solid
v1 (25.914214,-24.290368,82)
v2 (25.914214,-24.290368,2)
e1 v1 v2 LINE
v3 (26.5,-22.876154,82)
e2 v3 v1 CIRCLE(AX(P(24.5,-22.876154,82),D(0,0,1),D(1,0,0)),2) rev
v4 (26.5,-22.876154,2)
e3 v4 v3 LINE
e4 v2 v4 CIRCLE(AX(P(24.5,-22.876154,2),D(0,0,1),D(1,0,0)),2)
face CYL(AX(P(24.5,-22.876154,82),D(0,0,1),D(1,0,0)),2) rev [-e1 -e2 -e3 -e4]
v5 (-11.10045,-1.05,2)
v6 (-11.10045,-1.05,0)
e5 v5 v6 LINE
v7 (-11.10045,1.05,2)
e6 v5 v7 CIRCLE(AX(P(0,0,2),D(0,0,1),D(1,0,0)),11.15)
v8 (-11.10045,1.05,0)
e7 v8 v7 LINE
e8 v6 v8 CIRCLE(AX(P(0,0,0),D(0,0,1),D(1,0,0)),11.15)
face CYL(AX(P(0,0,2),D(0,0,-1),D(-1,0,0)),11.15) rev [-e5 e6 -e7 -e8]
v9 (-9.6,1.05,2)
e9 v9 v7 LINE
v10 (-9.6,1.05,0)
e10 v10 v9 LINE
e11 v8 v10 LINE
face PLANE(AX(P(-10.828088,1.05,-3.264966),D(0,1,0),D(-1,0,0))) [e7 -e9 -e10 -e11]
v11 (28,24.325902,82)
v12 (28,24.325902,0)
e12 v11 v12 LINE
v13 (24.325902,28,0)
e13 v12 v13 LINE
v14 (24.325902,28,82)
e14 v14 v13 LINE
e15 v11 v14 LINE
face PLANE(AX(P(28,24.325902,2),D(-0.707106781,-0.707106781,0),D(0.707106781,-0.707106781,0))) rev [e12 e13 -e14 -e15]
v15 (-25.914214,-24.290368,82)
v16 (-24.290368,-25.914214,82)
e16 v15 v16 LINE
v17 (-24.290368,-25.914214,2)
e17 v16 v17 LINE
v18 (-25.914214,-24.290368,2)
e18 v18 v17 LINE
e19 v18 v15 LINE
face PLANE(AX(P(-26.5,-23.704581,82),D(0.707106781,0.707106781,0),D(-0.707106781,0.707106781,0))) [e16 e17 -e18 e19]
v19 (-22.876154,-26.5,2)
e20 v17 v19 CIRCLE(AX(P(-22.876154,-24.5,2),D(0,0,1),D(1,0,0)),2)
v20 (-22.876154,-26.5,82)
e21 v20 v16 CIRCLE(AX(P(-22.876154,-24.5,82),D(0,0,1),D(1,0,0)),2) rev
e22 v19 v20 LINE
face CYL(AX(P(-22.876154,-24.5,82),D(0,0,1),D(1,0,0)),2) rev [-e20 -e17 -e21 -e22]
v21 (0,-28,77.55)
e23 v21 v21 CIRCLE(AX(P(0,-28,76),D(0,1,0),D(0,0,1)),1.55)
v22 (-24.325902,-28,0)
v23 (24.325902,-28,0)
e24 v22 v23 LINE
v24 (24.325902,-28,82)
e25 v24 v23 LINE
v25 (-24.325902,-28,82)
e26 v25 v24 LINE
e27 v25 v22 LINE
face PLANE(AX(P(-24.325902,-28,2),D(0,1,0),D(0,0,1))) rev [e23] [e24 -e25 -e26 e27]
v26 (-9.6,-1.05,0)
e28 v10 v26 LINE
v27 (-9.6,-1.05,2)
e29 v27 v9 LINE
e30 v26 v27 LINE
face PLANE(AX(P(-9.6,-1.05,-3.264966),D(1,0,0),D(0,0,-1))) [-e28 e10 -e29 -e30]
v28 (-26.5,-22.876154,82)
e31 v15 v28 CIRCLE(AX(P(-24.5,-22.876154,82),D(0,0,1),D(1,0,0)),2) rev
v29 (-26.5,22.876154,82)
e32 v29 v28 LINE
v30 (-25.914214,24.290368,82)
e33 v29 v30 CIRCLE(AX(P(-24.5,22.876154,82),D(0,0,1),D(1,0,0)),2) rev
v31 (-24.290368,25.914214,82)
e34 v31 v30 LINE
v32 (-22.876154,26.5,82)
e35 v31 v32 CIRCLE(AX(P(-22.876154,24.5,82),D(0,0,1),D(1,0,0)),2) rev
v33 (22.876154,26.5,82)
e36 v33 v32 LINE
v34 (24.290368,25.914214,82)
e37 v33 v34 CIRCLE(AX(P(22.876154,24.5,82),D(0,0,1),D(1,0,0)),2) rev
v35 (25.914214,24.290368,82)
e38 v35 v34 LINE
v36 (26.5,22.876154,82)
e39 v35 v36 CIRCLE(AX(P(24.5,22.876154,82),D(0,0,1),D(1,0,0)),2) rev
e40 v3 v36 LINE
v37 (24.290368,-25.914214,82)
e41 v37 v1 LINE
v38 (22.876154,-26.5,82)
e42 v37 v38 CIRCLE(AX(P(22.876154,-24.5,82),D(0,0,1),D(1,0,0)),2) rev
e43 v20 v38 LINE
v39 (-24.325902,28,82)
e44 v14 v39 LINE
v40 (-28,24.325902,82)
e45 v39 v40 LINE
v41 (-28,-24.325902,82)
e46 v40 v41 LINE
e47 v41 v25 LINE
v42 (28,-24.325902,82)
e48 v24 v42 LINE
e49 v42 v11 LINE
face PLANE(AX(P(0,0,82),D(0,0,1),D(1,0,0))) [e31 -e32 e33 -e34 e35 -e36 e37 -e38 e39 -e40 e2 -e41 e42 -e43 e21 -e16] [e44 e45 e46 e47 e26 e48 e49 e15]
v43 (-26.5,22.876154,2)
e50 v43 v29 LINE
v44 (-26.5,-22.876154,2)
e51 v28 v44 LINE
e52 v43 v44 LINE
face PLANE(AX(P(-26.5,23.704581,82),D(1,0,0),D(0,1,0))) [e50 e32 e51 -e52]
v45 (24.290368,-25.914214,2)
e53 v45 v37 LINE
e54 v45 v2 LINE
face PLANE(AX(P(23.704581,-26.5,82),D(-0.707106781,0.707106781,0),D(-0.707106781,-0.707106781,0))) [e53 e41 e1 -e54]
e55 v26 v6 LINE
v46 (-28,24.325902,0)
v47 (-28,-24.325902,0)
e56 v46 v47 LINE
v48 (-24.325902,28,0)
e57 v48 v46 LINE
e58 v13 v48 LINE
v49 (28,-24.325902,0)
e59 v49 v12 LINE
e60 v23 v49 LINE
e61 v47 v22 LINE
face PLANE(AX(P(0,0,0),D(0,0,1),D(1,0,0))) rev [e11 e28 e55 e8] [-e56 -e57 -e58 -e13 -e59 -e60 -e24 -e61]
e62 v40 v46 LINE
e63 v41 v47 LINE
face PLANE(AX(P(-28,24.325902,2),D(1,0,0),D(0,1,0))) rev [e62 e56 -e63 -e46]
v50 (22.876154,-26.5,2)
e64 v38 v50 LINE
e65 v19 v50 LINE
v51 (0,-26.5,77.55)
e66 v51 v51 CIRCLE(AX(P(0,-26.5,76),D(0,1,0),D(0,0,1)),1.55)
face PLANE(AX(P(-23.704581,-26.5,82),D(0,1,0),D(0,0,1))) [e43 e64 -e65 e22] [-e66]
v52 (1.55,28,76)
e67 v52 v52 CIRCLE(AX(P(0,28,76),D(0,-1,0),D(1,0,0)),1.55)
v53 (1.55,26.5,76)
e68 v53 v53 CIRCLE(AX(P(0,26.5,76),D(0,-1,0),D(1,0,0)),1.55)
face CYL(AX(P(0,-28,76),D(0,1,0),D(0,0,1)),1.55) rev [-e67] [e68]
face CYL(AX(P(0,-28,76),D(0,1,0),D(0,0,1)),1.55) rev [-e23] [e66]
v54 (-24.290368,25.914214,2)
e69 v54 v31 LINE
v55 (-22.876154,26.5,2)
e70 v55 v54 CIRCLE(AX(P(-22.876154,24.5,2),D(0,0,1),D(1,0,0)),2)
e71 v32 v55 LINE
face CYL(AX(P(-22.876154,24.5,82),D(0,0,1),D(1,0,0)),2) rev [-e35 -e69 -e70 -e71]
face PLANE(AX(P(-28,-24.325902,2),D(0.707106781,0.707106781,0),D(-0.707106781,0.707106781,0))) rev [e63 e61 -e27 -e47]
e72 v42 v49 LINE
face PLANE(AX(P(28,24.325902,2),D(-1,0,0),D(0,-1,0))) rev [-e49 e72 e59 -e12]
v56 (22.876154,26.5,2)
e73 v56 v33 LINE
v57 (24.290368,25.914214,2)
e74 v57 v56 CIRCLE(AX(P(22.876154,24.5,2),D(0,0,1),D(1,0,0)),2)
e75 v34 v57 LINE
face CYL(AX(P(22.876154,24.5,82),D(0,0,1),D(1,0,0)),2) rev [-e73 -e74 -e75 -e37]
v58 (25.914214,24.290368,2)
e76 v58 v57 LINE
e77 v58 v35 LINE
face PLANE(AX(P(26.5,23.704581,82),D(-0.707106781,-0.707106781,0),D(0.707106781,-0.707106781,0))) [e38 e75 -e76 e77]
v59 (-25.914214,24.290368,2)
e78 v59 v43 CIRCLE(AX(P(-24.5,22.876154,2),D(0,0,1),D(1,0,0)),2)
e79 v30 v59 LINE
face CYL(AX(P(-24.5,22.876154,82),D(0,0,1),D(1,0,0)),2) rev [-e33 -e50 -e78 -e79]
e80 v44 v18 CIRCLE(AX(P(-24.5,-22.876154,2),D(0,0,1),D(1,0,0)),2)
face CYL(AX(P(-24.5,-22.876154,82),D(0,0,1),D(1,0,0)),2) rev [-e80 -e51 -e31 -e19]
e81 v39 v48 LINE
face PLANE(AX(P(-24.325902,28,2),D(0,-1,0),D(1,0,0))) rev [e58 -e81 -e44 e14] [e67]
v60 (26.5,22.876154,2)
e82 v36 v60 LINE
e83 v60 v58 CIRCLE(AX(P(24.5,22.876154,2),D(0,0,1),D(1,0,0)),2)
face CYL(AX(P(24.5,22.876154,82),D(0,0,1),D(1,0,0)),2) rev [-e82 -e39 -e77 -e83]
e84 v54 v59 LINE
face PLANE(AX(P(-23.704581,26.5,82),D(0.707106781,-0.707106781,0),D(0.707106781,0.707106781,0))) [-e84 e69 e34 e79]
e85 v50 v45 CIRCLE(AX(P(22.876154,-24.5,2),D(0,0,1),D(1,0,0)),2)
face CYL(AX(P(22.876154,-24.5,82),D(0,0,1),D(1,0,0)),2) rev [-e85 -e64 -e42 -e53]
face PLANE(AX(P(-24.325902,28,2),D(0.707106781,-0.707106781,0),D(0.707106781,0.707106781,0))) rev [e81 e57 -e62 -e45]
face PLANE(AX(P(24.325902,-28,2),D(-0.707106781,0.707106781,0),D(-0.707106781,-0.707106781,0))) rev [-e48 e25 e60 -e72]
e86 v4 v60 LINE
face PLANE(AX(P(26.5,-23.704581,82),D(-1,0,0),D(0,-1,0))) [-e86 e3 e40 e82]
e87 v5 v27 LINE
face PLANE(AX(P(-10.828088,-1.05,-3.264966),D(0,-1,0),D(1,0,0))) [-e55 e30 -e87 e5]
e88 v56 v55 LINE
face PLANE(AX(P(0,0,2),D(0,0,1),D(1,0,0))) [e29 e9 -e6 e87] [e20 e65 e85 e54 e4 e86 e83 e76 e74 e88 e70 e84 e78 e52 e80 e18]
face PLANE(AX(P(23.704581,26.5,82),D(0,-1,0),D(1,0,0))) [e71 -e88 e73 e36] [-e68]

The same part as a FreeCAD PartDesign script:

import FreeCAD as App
import Part
import Sketcher
from FreeCAD import Vector
Q = App.Units.Quantity


def edges_at(feature, points):
    """Names of the edges that pass closest to the given points."""
    edges = feature.Shape.Edges
    near = lambda p: min(range(len(edges)), key=lambda i: edges[i].distToShape(Part.Vertex(*p))[0])
    return sorted({f"Edge{near(p) + 1}" for p in points})


def add_polygon(sketch, points):
    """Adds a closed chain of lines whose ends are joined by coincident constraints."""
    first, n = sketch.GeometryCount, len(points)
    for a, b in zip(points, points[1:] + points[:1]):
        sketch.addGeometry(Part.LineSegment(App.Vector(*a, 0), App.Vector(*b, 0)), False)
    for i in range(n):
        sketch.addConstraint(Sketcher.Constraint("Coincident", first + i, 2, first + (i + 1) % n, 1))

doc = App.newDocument("Part")
body = doc.addObject("PartDesign::Body", "Body")

sketch1 = doc.addObject("Sketcher::SketchObject", "Sketch")
body.addObject(sketch1)
sketch1.AttachmentSupport = (doc.XY_Plane, [""])
sketch1.MapMode = "FlatFace"
add_polygon(sketch1, [(24, 28), (-24, 28), (-28, 24), (-28, -24), (-24, -28), (24, -28), (28, -24), (28, 24)])
sketch1.addGeometry(Part.Circle(Vector(0, 0, 0), Vector(0, 0, 1), 11), False)
sketch1.addConstraint(Sketcher.Constraint("Horizontal", 0))
sketch1.addConstraint(Sketcher.Constraint("Vertical", 2))
sketch1.addConstraint(Sketcher.Constraint("Horizontal", 4))
sketch1.addConstraint(Sketcher.Constraint("Vertical", 6))
sketch1.addConstraint(Sketcher.Constraint("Coincident", 8, 3, -1, 1))
sketch1.addConstraint(Sketcher.Constraint("Symmetric", 0, 2, 4, 2, -1, 1))
sketch1.addConstraint(Sketcher.Constraint("Symmetric", 1, 2, 5, 2, -1, 1))
sketch1.addConstraint(Sketcher.Constraint("Perpendicular", 1, 3))
sketch1.addConstraint(Sketcher.Constraint("Perpendicular", 5, 7))
sketch1.addConstraint(Sketcher.Constraint("Horizontal", 2, 2, 5, 2))
sketch1.addConstraint(Sketcher.Constraint("Horizontal", 1, 2, 6, 2))
sketch1.addConstraint(Sketcher.Constraint("Vertical", 0, 2, 3, 2))
sketch1.addConstraint(Sketcher.Constraint("Equal", 4, 2))
sketch1.addConstraint(Sketcher.Constraint("Diameter", 8, Q("22.3 mm")))
sketch1.addConstraint(Sketcher.Constraint("DistanceY", -1, 1, 0, 2, Q("28 mm")))
sketch1.addConstraint(Sketcher.Constraint("DistanceX", 0, 2, -1, 1, Q("24.325902 mm")))
pad1 = doc.addObject("PartDesign::Pad", "Pad")
body.addObject(pad1)
pad1.Profile = sketch1
pad1.Length = 2

sketch2 = doc.addObject("Sketcher::SketchObject", "Sketch001")
body.addObject(sketch2)
sketch2.AttachmentSupport = (doc.XY_Plane, [""])
sketch2.MapMode = "FlatFace"
sketch2.AttachmentOffset = App.Placement(Vector(0, 0, 2), App.Rotation())
add_polygon(sketch2, [(-28, 24.3), (-28, -24.3), (-24.3, -28), (24.3, -28), (28, -24.3), (28, 24.3), (24.3, 28), (-24.3, 28)])
add_polygon(sketch2, [(-26.5, -23.7), (-26.5, 23.7), (-23.7, 26.5), (23.7, 26.5), (26.5, 23.7), (26.5, -23.7), (23.7, -26.5), (-23.7, -26.5)])
sketch2.addConstraint(Sketcher.Constraint("Vertical", 0))
sketch2.addConstraint(Sketcher.Constraint("Horizontal", 2))
sketch2.addConstraint(Sketcher.Constraint("Vertical", 4))
sketch2.addConstraint(Sketcher.Constraint("Horizontal", 6))
sketch2.addConstraint(Sketcher.Constraint("Vertical", 8))
sketch2.addConstraint(Sketcher.Constraint("Horizontal", 10))
sketch2.addConstraint(Sketcher.Constraint("Vertical", 12))
sketch2.addConstraint(Sketcher.Constraint("Horizontal", 14))
sketch2.addConstraint(Sketcher.Constraint("Symmetric", 0, 2, 4, 2, -1, 1))
sketch2.addConstraint(Sketcher.Constraint("Symmetric", 1, 2, 5, 2, -1, 1))
sketch2.addConstraint(Sketcher.Constraint("Symmetric", 8, 2, 12, 2, -1, 1))
sketch2.addConstraint(Sketcher.Constraint("Symmetric", 9, 2, 13, 2, -1, 1))
sketch2.addConstraint(Sketcher.Constraint("Perpendicular", 1, 3))
sketch2.addConstraint(Sketcher.Constraint("Perpendicular", 5, 7))
sketch2.addConstraint(Sketcher.Constraint("Parallel", 7, 9))
sketch2.addConstraint(Sketcher.Constraint("Perpendicular", 9, 11))
sketch2.addConstraint(Sketcher.Constraint("Perpendicular", 13, 15))
sketch2.addConstraint(Sketcher.Constraint("Horizontal", 0, 2, 3, 2))
sketch2.addConstraint(Sketcher.Constraint("Horizontal", 4, 2, 7, 2))
sketch2.addConstraint(Sketcher.Constraint("Horizontal", 8, 2, 11, 2))
sketch2.addConstraint(Sketcher.Constraint("Horizontal", 12, 2, 15, 2))
sketch2.addConstraint(Sketcher.Constraint("Vertical", 2, 2, 5, 2))
sketch2.addConstraint(Sketcher.Constraint("Equal", 6, 0))
sketch2.addConstraint(Sketcher.Constraint("Equal", 14, 8))
sketch2.addConstraint(Sketcher.Constraint("DistanceX", 0, 2, -1, 1, Q("28 mm")))
sketch2.addConstraint(Sketcher.Constraint("DistanceX", 8, 2, -1, 1, Q("26.5 mm")))
sketch2.addConstraint(Sketcher.Constraint("DistanceY", 0, 2, -1, 1, Q("24.325902 mm")))
sketch2.addConstraint(Sketcher.Constraint("Distance", 9, Q("3.953319 mm")))
pad2 = doc.addObject("PartDesign::Pad", "Pad001")
body.addObject(pad2)
pad2.Profile = sketch2
pad2.Length = 80

sketch3 = doc.addObject("Sketcher::SketchObject", "Sketch002")
body.addObject(sketch3)
sketch3.AttachmentSupport = (doc.XY_Plane, [""])
sketch3.MapMode = "FlatFace"
add_polygon(sketch3, [(28, -20), (28, 20), (35.5, 12.5), (35.5, -12.5)])
add_polygon(sketch3, [(34.5, 1.6), (31.8, 3.2), (29, 1.6), (29, -1.6), (31.8, -3.2), (34.5, -1.6)])
sketch3.addConstraint(Sketcher.Constraint("Vertical", 0))
sketch3.addConstraint(Sketcher.Constraint("Vertical", 2))
sketch3.addConstraint(Sketcher.Constraint("Vertical", 6))
sketch3.addConstraint(Sketcher.Constraint("Vertical", 9))
sketch3.addConstraint(Sketcher.Constraint("Symmetric", 4, 2, 7, 2, -1))
sketch3.addConstraint(Sketcher.Constraint("Perpendicular", 1, 3))
sketch3.addConstraint(Sketcher.Constraint("Parallel", 4, 7))
sketch3.addConstraint(Sketcher.Constraint("Parallel", 5, 8))
sketch3.addConstraint(Sketcher.Constraint("Horizontal", 6, 2, 8, 2))
sketch3.addConstraint(Sketcher.Constraint("Horizontal", 5, 2, 9, 2))
sketch3.addConstraint(Sketcher.Constraint("Equal", 1, 3))
sketch3.addConstraint(Sketcher.Constraint("DistanceY", 0, 1, 0, 2, Q("40 mm")))
sketch3.addConstraint(Sketcher.Constraint("DistanceY", 2, 2, 2, 1, Q("25 mm")))
sketch3.addConstraint(Sketcher.Constraint("Angle", 4, Q("150 deg")))
sketch3.addConstraint(Sketcher.Constraint("DistanceX", -1, 1, 0, 2, Q("28 mm")))
sketch3.addConstraint(Sketcher.Constraint("DistanceY", -1, 1, 0, 2, Q("20 mm")))
sketch3.addConstraint(Sketcher.Constraint("DistanceX", -1, 1, 5, 2, Q("29 mm")))
sketch3.addConstraint(Sketcher.Constraint("DistanceX", 8, 2, 2, 2, Q("1 mm")))
sketch3.addConstraint(Sketcher.Constraint("DistanceY", 6, 2, 6, 1, Q("3.175426 mm")))
pad3 = doc.addObject("PartDesign::Pad", "Pad002")
body.addObject(pad3)
pad3.Profile = sketch3
pad3.Length = 2.3

sketch4 = doc.addObject("Sketcher::SketchObject", "Sketch003")
body.addObject(sketch4)
sketch4.AttachmentSupport = (doc.XZ_Plane, [""])
sketch4.MapMode = "FlatFace"
sketch4.AttachmentOffset = App.Placement(Vector(0, 0, -28), App.Rotation())
sketch4.addGeometry(Part.Circle(Vector(0, 76, 0), Vector(0, 0, 1), 1.6), False)
sketch4.addConstraint(Sketcher.Constraint("PointOnObject", 0, 3, -2))
sketch4.addConstraint(Sketcher.Constraint("Diameter", 0, Q("3.1 mm")))
sketch4.addConstraint(Sketcher.Constraint("DistanceY", -1, 1, 0, 3, Q("76 mm")))
pocket1 = doc.addObject("PartDesign::Pocket", "Pocket")
body.addObject(pocket1)
pocket1.Profile = sketch4
pocket1.Type = "ThroughAll"
pocket1.Midplane = True

sketch5 = doc.addObject("Sketcher::SketchObject", "Sketch004")
body.addObject(sketch5)
sketch5.AttachmentSupport = (doc.XY_Plane, [""])
sketch5.MapMode = "FlatFace"
sketch5.AttachmentOffset = App.Placement(Vector(0, 0, 2), App.Rotation())
add_polygon(sketch5, [(-12.1, -1.1), (-9.6, -1.1), (-9.6, 1.1), (-12.1, 1.1)])
sketch5.addConstraint(Sketcher.Constraint("Horizontal", 0))
sketch5.addConstraint(Sketcher.Constraint("Vertical", 1))
sketch5.addConstraint(Sketcher.Constraint("Horizontal", 2))
sketch5.addConstraint(Sketcher.Constraint("Vertical", 3))
sketch5.addConstraint(Sketcher.Constraint("DistanceX", 0, 1, 0, 2, Q("2.5 mm")))
sketch5.addConstraint(Sketcher.Constraint("DistanceY", 1, 1, 1, 2, Q("2.1 mm")))
sketch5.addConstraint(Sketcher.Constraint("DistanceX", 0, 2, -1, 1, Q("9.6 mm")))
sketch5.addConstraint(Sketcher.Constraint("DistanceY", 0, 2, -1, 1, Q("1.05 mm")))
pad4 = doc.addObject("PartDesign::Pad", "Pad003")
body.addObject(pad4)
pad4.Profile = sketch5
pad4.Length = 2
pad4.Reversed = True

sketch6 = doc.addObject("Sketcher::SketchObject", "Sketch005")
body.addObject(sketch6)
sketch6.AttachmentSupport = (doc.XY_Plane, [""])
sketch6.MapMode = "FlatFace"
sketch6.AttachmentOffset = App.Placement(Vector(0, 0, 2.3), App.Rotation())
add_polygon(sketch6, [(28, -20), (36, -12), (36, 12), (28, 20)])
sketch6.addConstraint(Sketcher.Constraint("Vertical", 1))
sketch6.addConstraint(Sketcher.Constraint("Vertical", 3))
sketch6.addConstraint(Sketcher.Constraint("Perpendicular", 0, 2))
sketch6.addConstraint(Sketcher.Constraint("Equal", 0, 2))
sketch6.addConstraint(Sketcher.Constraint("DistanceY", 1, 1, 1, 2, Q("25 mm")))
sketch6.addConstraint(Sketcher.Constraint("DistanceY", 3, 2, 3, 1, Q("40 mm")))
sketch6.addConstraint(Sketcher.Constraint("DistanceX", -1, 1, 2, 2, Q("28 mm")))
sketch6.addConstraint(Sketcher.Constraint("DistanceY", -1, 1, 2, 2, Q("20 mm")))
pocket2 = doc.addObject("PartDesign::Pocket", "Pocket001")
body.addObject(pocket2)
pocket2.Profile = sketch6
pocket2.Length = 10
doc.recompute()

fillet = doc.addObject("PartDesign::Fillet", "Fillet")
body.addObject(fillet)
fillet.Base = (pocket2, edges_at(pocket2, [
    (-23.705, -26.5, 42),
    (23.705, -26.5, 42),
    (26.5, -23.705, 42),
    (26.5, 23.705, 42),
    (23.705, 26.5, 42),
    (-23.705, 26.5, 42),
    (-26.5, 23.705, 42),
    (-26.5, -23.705, 42),
]))
fillet.Radius = 2

doc.recompute()
